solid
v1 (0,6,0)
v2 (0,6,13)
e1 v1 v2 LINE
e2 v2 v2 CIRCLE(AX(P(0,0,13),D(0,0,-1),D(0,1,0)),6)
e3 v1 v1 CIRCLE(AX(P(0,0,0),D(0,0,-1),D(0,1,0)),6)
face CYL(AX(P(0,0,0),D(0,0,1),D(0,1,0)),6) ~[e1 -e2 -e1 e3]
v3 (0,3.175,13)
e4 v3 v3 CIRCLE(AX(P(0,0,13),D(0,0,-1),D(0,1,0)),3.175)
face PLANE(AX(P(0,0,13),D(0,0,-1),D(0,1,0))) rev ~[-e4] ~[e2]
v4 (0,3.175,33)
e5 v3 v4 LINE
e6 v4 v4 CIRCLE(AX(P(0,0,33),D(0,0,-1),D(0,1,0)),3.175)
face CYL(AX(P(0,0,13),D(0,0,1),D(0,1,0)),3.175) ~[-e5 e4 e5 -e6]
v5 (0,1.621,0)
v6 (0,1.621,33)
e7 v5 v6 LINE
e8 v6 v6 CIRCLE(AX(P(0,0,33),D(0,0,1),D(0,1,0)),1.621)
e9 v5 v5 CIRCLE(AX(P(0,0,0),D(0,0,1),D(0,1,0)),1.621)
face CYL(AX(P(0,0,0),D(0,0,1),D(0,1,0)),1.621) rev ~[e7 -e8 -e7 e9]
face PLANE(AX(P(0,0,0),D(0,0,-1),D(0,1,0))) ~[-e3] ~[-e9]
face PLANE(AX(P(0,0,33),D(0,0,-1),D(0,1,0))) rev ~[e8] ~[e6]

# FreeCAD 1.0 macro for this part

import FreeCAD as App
import Part
import Sketcher

V = App.Vector

doc = App.newDocument("Part")
params = doc.addObject("Spreadsheet::Sheet", "Params")
for row, (alias, value) in enumerate([
    ("sketch1_width", "6 mm"),
    ("sketch1_height", "13 mm"),
    ("sketch1_height2", "20 mm"),
    ("revolution_angle", "360 deg"),
    ("hole_diameter", "3.242 mm"),
    ("hole_depth", "33 mm"),
], start=1):
    params.set(f"A{row}", alias)
    params.set(f"B{row}", "=" + value)
    params.setAlias(f"B{row}", alias)

body = doc.addObject("PartDesign::Body", "Body")

# Sketch on YZ plane
sketch1 = body.newObject("Sketcher::SketchObject", "Sketch")
sketch1.AttachmentSupport = (doc.getObject("YZ_Plane"), [""])
sketch1.MapMode = "FlatFace"
sketch1.addGeometry(Part.LineSegment(V(0, 0, 0), V(6, 0, 0)), False)
sketch1.addGeometry(Part.LineSegment(V(6, 0, 0), V(6, 13, 0)), False)
sketch1.addGeometry(Part.LineSegment(V(6, 13, 0), V(3.175, 13, 0)), False)
sketch1.addGeometry(Part.LineSegment(V(3.175, 13, 0), V(3.175, 33, 0)), False)
sketch1.addGeometry(Part.LineSegment(V(3.175, 33, 0), V(0, 33, 0)), False)
sketch1.addGeometry(Part.LineSegment(V(0, 33, 0), V(0, 0, 0)), False)
sketch1.addConstraint(Sketcher.Constraint("Coincident", 0, 2, 1, 1))
sketch1.addConstraint(Sketcher.Constraint("Coincident", 1, 2, 2, 1))
sketch1.addConstraint(Sketcher.Constraint("Coincident", 2, 2, 3, 1))
sketch1.addConstraint(Sketcher.Constraint("Coincident", 3, 2, 4, 1))
sketch1.addConstraint(Sketcher.Constraint("Coincident", 4, 2, 5, 1))
sketch1.addConstraint(Sketcher.Constraint("Coincident", 5, 2, 0, 1))
sketch1.addConstraint(Sketcher.Constraint("Horizontal", 0))
sketch1.addConstraint(Sketcher.Constraint("Vertical", 1))
sketch1.addConstraint(Sketcher.Constraint("Horizontal", 2))
sketch1.addConstraint(Sketcher.Constraint("Vertical", 3))
sketch1.addConstraint(Sketcher.Constraint("Horizontal", 4))
sketch1.addConstraint(Sketcher.Constraint("Vertical", 5))
sketch1.addConstraint(Sketcher.Constraint("Coincident", 5, 2, -1, 1))
sketch1.addConstraint(Sketcher.Constraint("DistanceX", 0, 1, 0, 2, 6.0))
sketch1.addConstraint(Sketcher.Constraint("DistanceY", 1, 1, 1, 2, 13.0))
sketch1.addConstraint(Sketcher.Constraint("DistanceY", 3, 1, 3, 2, 20.0))
sketch1.addConstraint(Sketcher.Constraint("DistanceX", 4, 2, 4, 1, 3.175))
sketch1.setExpression("Constraints[13]", "Params.sketch1_width")
sketch1.setExpression("Constraints[14]", "Params.sketch1_height")
sketch1.setExpression("Constraints[15]", "Params.sketch1_height2")
revolution = body.newObject("PartDesign::Revolution", "Revolution")
revolution.Profile = sketch1
revolution.ReferenceAxis = (sketch1, ["V_Axis"])
revolution.setExpression("Angle", "Params.revolution_angle")

# Sketch on XY plane
sketch2 = body.newObject("Sketcher::SketchObject", "Sketch001")
sketch2.AttachmentSupport = (doc.getObject("XY_Plane"), [""])
sketch2.MapMode = "FlatFace"
sketch2.addGeometry(Part.Circle(V(0, 0, 0), V(0, 0, 1), 1.621), False)
sketch2.addConstraint(Sketcher.Constraint("Coincident", 0, 3, -1, 1))
sketch2.addConstraint(Sketcher.Constraint("Diameter", 0, 3.242))
doc.recompute()
hole = body.newObject("PartDesign::Hole", "Hole")
hole.Profile = sketch2
hole.ThreadType = "None"
hole.setExpression("Diameter", "Params.hole_diameter")
hole.DepthType = "Dimension"
hole.setExpression("Depth", "Params.hole_depth")
hole.DrillPoint = "Flat"
hole.Reversed = True

doc.recompute()
